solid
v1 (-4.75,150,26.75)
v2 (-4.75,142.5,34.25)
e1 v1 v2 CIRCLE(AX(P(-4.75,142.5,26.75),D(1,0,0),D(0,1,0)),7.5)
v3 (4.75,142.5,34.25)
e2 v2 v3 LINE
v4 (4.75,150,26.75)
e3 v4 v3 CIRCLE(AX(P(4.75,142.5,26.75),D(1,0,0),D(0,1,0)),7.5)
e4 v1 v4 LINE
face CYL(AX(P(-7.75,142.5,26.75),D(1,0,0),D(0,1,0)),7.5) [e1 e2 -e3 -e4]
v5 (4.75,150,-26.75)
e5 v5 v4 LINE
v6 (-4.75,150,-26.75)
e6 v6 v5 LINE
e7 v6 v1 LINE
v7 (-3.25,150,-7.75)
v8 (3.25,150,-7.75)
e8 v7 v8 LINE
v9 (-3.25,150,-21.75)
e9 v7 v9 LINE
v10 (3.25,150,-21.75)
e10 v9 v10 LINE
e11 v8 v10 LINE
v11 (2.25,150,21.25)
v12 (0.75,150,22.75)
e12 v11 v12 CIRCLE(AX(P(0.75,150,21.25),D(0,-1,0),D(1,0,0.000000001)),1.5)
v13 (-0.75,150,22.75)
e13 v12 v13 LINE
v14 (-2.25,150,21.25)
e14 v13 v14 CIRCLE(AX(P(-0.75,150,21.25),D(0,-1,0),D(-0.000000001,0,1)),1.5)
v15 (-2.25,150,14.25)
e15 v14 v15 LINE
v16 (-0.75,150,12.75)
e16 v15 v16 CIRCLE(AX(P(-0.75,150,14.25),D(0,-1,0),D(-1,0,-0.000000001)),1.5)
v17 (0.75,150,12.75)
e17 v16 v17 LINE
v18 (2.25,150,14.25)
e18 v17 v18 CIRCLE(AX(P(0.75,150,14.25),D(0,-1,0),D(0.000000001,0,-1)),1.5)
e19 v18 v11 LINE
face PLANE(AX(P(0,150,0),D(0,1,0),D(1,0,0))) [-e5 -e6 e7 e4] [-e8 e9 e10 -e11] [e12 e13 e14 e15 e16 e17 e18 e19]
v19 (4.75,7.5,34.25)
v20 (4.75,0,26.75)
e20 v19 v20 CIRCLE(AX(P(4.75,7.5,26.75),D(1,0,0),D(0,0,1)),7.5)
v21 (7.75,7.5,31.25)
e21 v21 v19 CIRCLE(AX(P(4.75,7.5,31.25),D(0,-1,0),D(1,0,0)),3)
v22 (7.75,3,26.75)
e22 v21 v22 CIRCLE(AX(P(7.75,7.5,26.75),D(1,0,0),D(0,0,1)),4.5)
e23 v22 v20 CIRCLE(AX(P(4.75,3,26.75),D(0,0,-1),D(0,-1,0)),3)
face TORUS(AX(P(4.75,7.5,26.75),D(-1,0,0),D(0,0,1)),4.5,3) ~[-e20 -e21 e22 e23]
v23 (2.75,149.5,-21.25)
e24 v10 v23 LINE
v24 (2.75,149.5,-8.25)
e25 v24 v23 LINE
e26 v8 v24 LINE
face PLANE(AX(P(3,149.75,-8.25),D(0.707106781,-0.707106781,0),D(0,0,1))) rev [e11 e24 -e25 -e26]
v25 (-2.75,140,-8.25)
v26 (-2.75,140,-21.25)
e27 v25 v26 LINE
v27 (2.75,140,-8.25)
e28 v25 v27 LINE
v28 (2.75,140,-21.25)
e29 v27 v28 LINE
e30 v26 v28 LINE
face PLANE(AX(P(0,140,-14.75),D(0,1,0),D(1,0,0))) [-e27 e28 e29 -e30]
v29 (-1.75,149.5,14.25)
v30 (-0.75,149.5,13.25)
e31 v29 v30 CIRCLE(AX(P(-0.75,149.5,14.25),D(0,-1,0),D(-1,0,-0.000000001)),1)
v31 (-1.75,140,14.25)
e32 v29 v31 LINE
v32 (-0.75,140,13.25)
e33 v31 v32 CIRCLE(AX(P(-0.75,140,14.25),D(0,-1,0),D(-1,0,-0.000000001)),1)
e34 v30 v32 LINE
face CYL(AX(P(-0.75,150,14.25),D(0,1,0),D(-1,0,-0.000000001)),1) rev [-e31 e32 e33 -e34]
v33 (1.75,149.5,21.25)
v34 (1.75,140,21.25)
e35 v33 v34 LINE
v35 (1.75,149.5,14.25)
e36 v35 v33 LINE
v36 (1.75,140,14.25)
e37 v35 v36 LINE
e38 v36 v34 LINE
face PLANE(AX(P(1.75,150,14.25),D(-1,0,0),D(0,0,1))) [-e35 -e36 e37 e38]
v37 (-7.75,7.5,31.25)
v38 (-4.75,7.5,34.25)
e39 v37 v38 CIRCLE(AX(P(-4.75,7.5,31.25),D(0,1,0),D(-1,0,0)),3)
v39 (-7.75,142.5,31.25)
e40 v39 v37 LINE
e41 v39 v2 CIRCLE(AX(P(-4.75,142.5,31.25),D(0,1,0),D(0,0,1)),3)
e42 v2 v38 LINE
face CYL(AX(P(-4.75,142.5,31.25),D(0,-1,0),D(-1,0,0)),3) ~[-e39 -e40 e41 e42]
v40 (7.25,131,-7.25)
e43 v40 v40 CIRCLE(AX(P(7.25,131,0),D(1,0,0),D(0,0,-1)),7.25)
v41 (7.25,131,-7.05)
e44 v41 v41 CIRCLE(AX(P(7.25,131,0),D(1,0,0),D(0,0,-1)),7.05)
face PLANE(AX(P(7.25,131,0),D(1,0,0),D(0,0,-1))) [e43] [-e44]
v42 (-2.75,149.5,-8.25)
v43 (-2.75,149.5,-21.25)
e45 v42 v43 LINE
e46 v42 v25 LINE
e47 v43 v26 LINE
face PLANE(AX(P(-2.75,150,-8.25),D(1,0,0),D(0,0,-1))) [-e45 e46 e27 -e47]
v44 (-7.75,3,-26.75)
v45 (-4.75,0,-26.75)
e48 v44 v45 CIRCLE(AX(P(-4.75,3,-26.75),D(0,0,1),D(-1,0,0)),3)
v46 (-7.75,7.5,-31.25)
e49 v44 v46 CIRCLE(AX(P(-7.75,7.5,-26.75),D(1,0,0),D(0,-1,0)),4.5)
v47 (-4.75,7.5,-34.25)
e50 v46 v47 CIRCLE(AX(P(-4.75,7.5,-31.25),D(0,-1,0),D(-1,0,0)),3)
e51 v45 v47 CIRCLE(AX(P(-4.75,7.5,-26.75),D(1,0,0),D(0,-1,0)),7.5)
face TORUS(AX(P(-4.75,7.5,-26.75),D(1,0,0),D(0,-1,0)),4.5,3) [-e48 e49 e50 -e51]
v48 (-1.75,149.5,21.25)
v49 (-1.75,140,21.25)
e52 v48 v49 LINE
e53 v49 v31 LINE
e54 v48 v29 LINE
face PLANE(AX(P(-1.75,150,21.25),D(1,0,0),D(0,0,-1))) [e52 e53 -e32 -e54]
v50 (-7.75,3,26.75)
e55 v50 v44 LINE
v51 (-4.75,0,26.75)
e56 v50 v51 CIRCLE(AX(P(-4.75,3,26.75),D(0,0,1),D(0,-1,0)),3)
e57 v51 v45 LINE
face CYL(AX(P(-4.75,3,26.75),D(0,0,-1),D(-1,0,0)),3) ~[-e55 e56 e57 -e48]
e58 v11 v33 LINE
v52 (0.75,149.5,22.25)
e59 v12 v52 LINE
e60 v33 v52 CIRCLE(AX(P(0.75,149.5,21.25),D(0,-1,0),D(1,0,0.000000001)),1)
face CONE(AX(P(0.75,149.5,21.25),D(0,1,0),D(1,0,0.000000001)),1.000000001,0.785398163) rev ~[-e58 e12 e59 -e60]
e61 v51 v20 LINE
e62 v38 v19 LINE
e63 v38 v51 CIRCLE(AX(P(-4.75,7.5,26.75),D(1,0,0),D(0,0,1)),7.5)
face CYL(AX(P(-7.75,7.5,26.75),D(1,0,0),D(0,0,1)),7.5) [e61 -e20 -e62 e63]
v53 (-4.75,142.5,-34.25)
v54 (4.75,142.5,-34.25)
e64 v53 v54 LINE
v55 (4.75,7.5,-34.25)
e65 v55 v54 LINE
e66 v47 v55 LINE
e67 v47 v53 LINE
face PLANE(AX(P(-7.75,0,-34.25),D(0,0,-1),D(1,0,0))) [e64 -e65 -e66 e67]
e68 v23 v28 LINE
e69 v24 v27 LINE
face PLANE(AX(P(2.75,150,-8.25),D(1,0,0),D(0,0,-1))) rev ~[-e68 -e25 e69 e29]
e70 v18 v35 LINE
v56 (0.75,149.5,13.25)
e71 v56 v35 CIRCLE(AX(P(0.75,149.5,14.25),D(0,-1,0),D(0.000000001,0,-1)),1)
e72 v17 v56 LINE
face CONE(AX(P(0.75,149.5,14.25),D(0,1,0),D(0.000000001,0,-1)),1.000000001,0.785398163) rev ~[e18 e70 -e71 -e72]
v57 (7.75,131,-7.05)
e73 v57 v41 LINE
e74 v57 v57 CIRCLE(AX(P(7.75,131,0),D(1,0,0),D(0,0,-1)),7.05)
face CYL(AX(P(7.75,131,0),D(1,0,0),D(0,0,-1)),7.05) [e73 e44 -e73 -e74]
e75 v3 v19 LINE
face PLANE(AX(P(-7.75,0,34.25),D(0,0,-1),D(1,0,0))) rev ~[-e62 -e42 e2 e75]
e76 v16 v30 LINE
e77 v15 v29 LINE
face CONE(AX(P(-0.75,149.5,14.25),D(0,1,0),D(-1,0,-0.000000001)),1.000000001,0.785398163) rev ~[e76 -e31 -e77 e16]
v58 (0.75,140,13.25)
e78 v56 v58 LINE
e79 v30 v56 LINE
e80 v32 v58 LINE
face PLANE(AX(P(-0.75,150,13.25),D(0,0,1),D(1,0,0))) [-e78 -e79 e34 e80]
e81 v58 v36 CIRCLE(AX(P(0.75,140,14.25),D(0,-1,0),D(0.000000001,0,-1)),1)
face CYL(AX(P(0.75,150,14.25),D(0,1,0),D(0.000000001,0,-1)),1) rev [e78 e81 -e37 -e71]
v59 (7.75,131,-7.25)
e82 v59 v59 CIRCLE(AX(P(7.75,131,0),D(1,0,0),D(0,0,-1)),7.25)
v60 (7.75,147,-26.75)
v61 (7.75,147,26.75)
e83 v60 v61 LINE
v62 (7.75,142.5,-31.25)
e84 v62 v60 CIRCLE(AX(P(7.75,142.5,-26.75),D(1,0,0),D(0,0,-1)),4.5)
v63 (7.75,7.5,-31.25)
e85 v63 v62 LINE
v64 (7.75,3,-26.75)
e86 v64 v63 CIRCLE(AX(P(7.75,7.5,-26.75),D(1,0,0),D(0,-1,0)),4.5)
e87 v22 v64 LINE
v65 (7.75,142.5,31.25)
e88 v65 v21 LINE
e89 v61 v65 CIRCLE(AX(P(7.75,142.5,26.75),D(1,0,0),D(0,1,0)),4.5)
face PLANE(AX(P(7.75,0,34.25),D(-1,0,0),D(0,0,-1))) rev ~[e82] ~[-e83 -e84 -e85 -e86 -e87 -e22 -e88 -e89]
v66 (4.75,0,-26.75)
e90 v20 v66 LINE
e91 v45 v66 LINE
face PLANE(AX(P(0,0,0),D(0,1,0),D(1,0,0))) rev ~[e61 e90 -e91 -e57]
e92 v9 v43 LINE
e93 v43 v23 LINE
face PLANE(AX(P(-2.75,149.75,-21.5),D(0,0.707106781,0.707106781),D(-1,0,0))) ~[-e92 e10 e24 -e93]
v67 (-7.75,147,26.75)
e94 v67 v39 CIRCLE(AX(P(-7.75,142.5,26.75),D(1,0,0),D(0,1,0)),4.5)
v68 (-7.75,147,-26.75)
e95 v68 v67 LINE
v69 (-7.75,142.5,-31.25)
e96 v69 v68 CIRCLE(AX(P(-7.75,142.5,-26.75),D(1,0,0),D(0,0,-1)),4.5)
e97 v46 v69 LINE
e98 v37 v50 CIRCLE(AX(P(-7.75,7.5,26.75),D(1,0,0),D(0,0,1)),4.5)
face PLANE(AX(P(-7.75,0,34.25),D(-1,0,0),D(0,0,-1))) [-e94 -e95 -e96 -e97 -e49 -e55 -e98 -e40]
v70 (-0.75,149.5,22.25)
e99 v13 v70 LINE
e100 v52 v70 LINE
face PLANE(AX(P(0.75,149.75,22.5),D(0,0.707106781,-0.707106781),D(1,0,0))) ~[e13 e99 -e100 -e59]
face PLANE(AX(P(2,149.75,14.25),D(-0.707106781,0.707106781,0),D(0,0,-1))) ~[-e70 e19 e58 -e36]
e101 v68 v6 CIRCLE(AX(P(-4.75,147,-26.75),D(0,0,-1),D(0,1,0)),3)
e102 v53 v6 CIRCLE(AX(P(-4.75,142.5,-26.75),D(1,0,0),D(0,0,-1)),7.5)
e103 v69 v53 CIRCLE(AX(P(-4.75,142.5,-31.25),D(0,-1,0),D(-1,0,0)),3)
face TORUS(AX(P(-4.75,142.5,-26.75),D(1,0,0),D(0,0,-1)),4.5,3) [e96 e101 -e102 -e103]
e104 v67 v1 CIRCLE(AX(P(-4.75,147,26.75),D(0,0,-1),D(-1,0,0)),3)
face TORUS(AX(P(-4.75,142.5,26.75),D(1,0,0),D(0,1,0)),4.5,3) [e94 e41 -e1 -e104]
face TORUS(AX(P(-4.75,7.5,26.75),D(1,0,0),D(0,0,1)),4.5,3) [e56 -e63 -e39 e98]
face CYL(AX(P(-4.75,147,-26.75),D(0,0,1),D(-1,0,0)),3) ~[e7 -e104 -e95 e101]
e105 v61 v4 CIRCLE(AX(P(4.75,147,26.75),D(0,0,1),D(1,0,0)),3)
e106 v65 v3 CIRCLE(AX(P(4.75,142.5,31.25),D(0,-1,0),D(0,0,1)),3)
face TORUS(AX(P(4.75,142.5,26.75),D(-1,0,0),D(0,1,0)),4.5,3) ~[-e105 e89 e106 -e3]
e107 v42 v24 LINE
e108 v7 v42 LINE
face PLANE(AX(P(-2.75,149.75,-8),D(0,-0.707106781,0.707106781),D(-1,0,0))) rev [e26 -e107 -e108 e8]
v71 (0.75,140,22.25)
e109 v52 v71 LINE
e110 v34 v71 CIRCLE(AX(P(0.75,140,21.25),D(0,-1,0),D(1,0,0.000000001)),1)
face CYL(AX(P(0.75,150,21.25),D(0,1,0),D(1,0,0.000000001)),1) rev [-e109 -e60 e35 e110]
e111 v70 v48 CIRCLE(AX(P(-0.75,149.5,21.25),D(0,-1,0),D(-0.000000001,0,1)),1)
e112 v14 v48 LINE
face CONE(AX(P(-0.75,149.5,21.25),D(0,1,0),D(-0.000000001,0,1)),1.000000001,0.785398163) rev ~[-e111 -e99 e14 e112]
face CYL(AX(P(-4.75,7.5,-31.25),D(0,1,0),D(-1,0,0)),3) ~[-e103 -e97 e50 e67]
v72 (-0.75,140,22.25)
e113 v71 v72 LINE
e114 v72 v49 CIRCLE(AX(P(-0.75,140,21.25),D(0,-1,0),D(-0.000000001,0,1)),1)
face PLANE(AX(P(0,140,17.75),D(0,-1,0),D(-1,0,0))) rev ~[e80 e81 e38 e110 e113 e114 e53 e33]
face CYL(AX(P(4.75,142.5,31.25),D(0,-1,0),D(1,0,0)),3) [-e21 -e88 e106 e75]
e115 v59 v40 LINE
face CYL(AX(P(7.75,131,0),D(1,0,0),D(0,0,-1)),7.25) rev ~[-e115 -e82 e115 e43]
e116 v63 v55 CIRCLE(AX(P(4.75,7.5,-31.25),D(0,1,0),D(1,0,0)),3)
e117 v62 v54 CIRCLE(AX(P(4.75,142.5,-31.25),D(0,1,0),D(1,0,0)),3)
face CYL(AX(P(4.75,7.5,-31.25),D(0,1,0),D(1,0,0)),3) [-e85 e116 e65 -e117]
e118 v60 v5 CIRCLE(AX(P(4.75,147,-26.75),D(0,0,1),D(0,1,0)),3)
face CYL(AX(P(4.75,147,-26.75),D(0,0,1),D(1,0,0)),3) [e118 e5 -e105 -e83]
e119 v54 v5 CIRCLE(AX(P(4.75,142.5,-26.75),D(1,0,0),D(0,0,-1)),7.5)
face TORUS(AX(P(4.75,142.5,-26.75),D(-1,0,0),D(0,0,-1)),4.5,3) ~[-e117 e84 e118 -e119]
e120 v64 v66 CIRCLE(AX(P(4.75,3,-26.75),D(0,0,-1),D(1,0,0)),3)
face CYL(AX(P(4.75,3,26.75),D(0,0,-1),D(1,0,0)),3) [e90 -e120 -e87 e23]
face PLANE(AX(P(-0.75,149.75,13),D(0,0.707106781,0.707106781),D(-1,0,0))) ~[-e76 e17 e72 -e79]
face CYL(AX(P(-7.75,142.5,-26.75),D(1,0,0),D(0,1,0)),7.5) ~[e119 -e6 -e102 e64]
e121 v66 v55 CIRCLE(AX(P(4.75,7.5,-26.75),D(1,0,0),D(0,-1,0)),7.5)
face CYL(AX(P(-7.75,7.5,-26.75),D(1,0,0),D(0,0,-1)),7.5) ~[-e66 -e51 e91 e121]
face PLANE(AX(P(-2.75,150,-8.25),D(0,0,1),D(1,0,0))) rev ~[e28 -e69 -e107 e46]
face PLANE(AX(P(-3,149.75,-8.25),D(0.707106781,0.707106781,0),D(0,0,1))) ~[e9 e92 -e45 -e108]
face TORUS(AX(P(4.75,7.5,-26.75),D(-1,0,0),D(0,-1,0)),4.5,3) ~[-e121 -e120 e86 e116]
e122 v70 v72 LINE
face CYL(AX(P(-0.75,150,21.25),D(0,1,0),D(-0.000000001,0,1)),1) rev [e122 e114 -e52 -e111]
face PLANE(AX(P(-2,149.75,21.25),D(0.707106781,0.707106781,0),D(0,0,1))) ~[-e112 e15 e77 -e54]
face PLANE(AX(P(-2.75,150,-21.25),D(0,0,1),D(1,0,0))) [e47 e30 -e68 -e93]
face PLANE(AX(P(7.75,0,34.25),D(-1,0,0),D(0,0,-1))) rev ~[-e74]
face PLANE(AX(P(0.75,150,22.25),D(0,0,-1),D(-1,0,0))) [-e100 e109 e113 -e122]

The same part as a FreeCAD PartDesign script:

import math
import FreeCAD as App
import Part
import Sketcher

V = App.Vector


def edges_at(feature, points):
    """Names of the edges that pass closest to the given points."""
    edges = feature.Shape.Edges
    near = lambda p: min(range(len(edges)), key=lambda i: edges[i].distToShape(Part.Vertex(*p))[0])
    return sorted({f"Edge{near(p) + 1}" for p in points})

doc = App.newDocument("Part")
body = doc.addObject("PartDesign::Body", "Body")

# Sketch on XZ plane
sketch1 = doc.addObject("Sketcher::SketchObject", "Sketch")
body.addObject(sketch1)
sketch1.AttachmentSupport = (doc.XZ_Plane, [""])
sketch1.MapMode = "FlatFace"
sketch1.addGeometry([
    Part.LineSegment(V(-7.75, -34.25, 0), V(-7.75, 34.25, 0)),
    Part.LineSegment(V(-7.75, 34.25, 0), V(7.75, 34.25, 0)),
    Part.LineSegment(V(7.75, 34.25, 0), V(7.75, -34.25, 0)),
    Part.LineSegment(V(7.75, -34.25, 0), V(-7.75, -34.25, 0)),
], False)
sketch1.addConstraint([
    Sketcher.Constraint("Coincident", 0, 2, 1, 1),
    Sketcher.Constraint("Coincident", 1, 2, 2, 1),
    Sketcher.Constraint("Coincident", 2, 2, 3, 1),
    Sketcher.Constraint("Coincident", 3, 2, 0, 1),
    Sketcher.Constraint("Vertical", 0),
    Sketcher.Constraint("Horizontal", 1),
    Sketcher.Constraint("Vertical", 2),
    Sketcher.Constraint("Horizontal", 3),
    Sketcher.Constraint("Symmetric", 0, 2, 2, 2, -1, 1),
    Sketcher.Constraint("DistanceX", 1, 1, 1, 2, 15.5),
    Sketcher.Constraint("DistanceY", 0, 1, 0, 2, 68.5),
])
pad1 = doc.addObject("PartDesign::Pad", "Pad")
body.addObject(pad1)
pad1.Profile = sketch1
pad1.Length = 150
pad1.Reversed = True

# Sketch on XZ plane
sketch2 = doc.addObject("Sketcher::SketchObject", "Sketch001")
body.addObject(sketch2)
sketch2.AttachmentSupport = (doc.XZ_Plane, [""])
sketch2.MapMode = "FlatFace"
sketch2.AttachmentOffset = App.Placement(V(0, 0, -150), App.Rotation())
sketch2.addGeometry([
    Part.LineSegment(V(-2.75, -21.25, 0), V(-2.75, -8.25, 0)),  # 0
    Part.LineSegment(V(-2.75, -8.25, 0), V(2.75, -8.25, 0)),  # 1
    Part.LineSegment(V(2.75, -8.25, 0), V(2.75, -21.25, 0)),  # 2
    Part.LineSegment(V(2.75, -21.25, 0), V(-2.75, -21.25, 0)),  # 3
    Part.LineSegment(V(0.75, 13.25, 0), V(-0.75, 13.25, 0)),  # 4
    Part.ArcOfCircle(Part.Circle(V(-0.75, 14.25, 0), V(0, 0, 1), 1), math.radians(-180), math.radians(-90)),  # 5
    Part.LineSegment(V(-1.75, 14.25, 0), V(-1.75, 21.25, 0)),  # 6
    Part.ArcOfCircle(Part.Circle(V(-0.75, 21.25, 0), V(0, 0, 1), 1), math.radians(90), math.radians(180)),  # 7
    Part.LineSegment(V(-0.75, 22.25, 0), V(0.75, 22.25, 0)),  # 8
    Part.ArcOfCircle(Part.Circle(V(0.75, 21.25, 0), V(0, 0, 1), 1), math.radians(0), math.radians(90)),  # 9
    Part.LineSegment(V(1.75, 21.25, 0), V(1.75, 14.25, 0)),  # 10
    Part.ArcOfCircle(Part.Circle(V(0.75, 14.25, 0), V(0, 0, 1), 1), math.radians(-90), math.radians(0)),  # 11
], False)
sketch2.addConstraint([
    Sketcher.Constraint("Coincident", 0, 2, 1, 1),
    Sketcher.Constraint("Coincident", 1, 2, 2, 1),
    Sketcher.Constraint("Coincident", 2, 2, 3, 1),
    Sketcher.Constraint("Coincident", 3, 2, 0, 1),
    Sketcher.Constraint("Tangent", 4, 2, 5, 2),
    Sketcher.Constraint("Tangent", 5, 1, 6, 1),
    Sketcher.Constraint("Tangent", 6, 2, 7, 2),
    Sketcher.Constraint("Tangent", 7, 1, 8, 1),
    Sketcher.Constraint("Tangent", 8, 2, 9, 2),
    Sketcher.Constraint("Tangent", 9, 1, 10, 1),
    Sketcher.Constraint("Tangent", 10, 2, 11, 2),
    Sketcher.Constraint("Tangent", 11, 1, 4, 1),
    Sketcher.Constraint("Vertical", 0),
    Sketcher.Constraint("Horizontal", 1),
    Sketcher.Constraint("Vertical", 2),
    Sketcher.Constraint("Horizontal", 3),
    Sketcher.Constraint("Horizontal", 4),
    Sketcher.Constraint("Vertical", 6),
    Sketcher.Constraint("Horizontal", 8),
    Sketcher.Constraint("Vertical", 10),
    Sketcher.Constraint("Equal", 5, 7),
    Sketcher.Constraint("Equal", 7, 9),
    Sketcher.Constraint("Equal", 9, 11),
    Sketcher.Constraint("Radius", 5, 1.0),
    Sketcher.Constraint("DistanceY", 0, 1, 0, 2, 13.0),
    Sketcher.Constraint("DistanceY", 6, 1, 6, 2, 7.0),
    Sketcher.Constraint("DistanceX", 1, 1, 1, 2, 5.5),
    Sketcher.Constraint("DistanceX", 4, 2, 4, 1, 1.5),
    Sketcher.Constraint("DistanceX", 0, 2, 5, 3, 2.0),
    Sketcher.Constraint("DistanceY", 0, 2, 5, 3, 22.5),
    Sketcher.Constraint("DistanceX", 5, 3, -1, 1, 0.75),
    Sketcher.Constraint("DistanceY", -1, 1, 5, 3, 14.25),
])
pocket1 = doc.addObject("PartDesign::Pocket", "Pocket")
body.addObject(pocket1)
pocket1.Profile = sketch2
pocket1.Length = 10
pocket1.Reversed = True
doc.recompute()

chamfer = doc.addObject("PartDesign::Chamfer", "Chamfer")
body.addObject(chamfer)
chamfer.Base = (pocket1, edges_at(pocket1, [
    (2.75, 150, -14.75),
    (0, 150, -21.25),
    (-2.75, 150, -14.75),
    (0, 150, -8.25),
    (1.457, 150, 21.957),
    (1.75, 150, 17.75),
    (1.457, 150, 13.543),
    (0, 150, 13.25),
    (-1.457, 150, 13.543),
    (-1.75, 150, 17.75),
    (-1.457, 150, 21.957),
    (0, 150, 22.25),
]))
chamfer.Size = 0.5
doc.recompute()

fillet = doc.addObject("PartDesign::Fillet", "Fillet")
body.addObject(fillet)
fillet.Base = (chamfer, edges_at(chamfer, [
    (0, 150, 34.25),
    (0, 0, 34.25),
    (0, 0, -34.25),
    (0, 150, -34.25),
]))
fillet.Radius = 7.5
doc.recompute()

fillet2 = doc.addObject("PartDesign::Fillet", "Fillet001")
body.addObject(fillet2)
fillet2.Base = (fillet, edges_at(fillet, [
    (-7.75, 75, -34.25),
    (7.75, 75, -34.25),
    (-7.75, 0, 0),
    (-7.75, 75, 34.25),
    (-7.75, 150, 0),
    (-7.75, 147.803, 32.053),
    (-7.75, 147.803, -32.053),
    (-7.75, 2.197, 32.053),
    (-7.75, 2.197, -32.053),
    (7.75, 0, 0),
    (7.75, 150, 0),
    (7.75, 75, 34.25),
    (7.75, 147.803, 32.053),
    (7.75, 147.803, -32.053),
    (7.75, 2.197, 32.053),
    (7.75, 2.197, -32.053),
]))
fillet2.Radius = 3

# Sketch on YZ plane
sketch3 = doc.addObject("Sketcher::SketchObject", "Sketch002")
body.addObject(sketch3)
sketch3.AttachmentSupport = (doc.YZ_Plane, [""])
sketch3.MapMode = "FlatFace"
sketch3.AttachmentOffset = App.Placement(V(0, 0, 7.75), App.Rotation())
sketch3.addGeometry([
    Part.Circle(V(131, 0, 0), V(0, 0, 1), 7.25),
    Part.Circle(V(131, 0, 0), V(0, 0, 1), 7.05),
], False)
sketch3.addConstraint([
    Sketcher.Constraint("Coincident", 1, 3, 0, 3),
    Sketcher.Constraint("PointOnObject", 0, 3, -1),
    Sketcher.Constraint("Diameter", 0, 14.5),
    Sketcher.Constraint("Diameter", 1, 14.1),
    Sketcher.Constraint("DistanceX", -1, 1, 0, 3, 131.0),
])
pocket2 = doc.addObject("PartDesign::Pocket", "Pocket001")
body.addObject(pocket2)
pocket2.Profile = sketch3
pocket2.Length = 0.5

doc.recompute()
